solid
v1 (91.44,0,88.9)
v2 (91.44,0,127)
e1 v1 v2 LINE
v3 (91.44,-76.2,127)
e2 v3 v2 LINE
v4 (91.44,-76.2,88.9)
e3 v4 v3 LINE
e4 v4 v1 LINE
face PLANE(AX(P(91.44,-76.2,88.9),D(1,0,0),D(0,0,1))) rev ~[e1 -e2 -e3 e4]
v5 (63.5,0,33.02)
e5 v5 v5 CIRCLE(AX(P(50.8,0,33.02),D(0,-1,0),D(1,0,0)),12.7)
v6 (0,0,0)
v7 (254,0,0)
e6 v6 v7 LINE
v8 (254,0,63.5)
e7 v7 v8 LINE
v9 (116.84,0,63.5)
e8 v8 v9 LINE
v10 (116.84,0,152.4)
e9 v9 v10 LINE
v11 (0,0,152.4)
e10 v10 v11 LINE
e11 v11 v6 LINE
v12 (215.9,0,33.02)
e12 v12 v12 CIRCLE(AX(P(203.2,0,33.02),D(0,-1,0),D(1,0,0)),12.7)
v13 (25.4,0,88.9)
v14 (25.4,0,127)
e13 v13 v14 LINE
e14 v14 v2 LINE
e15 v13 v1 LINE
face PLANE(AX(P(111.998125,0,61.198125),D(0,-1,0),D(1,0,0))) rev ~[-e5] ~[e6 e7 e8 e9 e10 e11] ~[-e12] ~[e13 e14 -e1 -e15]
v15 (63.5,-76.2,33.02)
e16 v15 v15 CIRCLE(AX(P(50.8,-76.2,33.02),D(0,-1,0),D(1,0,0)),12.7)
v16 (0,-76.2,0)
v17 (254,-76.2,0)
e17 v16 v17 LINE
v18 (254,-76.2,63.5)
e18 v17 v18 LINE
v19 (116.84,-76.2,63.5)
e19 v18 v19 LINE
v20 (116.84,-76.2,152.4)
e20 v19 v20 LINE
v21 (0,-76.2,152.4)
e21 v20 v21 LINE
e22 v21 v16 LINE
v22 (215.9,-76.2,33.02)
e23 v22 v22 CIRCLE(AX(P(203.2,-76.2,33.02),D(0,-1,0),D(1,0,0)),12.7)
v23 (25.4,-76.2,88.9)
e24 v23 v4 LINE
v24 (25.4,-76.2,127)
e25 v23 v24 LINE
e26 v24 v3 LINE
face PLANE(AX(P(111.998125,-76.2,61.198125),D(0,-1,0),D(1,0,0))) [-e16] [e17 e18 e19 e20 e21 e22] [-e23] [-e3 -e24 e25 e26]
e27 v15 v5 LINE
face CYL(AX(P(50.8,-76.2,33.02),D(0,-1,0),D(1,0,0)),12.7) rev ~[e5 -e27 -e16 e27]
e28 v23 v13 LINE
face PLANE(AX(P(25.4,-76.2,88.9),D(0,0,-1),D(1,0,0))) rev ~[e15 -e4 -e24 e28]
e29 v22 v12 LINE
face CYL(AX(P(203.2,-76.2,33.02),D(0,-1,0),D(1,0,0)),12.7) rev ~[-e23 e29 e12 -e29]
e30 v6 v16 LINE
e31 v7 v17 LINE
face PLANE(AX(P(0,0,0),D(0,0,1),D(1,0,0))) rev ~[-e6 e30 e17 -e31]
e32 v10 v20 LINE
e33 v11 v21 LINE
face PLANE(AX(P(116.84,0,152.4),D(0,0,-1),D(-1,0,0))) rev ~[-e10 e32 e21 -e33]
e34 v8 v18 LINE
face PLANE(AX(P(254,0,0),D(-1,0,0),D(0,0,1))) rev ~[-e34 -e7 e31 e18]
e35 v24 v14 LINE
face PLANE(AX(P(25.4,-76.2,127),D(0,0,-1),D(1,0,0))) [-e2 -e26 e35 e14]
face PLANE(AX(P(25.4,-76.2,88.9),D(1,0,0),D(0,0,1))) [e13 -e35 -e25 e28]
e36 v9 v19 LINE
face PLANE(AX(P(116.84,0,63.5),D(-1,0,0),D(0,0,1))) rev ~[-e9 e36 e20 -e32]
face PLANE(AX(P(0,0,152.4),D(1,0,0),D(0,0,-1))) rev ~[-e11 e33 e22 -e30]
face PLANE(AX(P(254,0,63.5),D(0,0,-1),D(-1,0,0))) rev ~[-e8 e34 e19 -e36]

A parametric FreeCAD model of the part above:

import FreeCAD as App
import Part
import Sketcher
from FreeCAD import Vector
Q = App.Units.Quantity

doc = App.newDocument("Part")
body = doc.addObject("PartDesign::Body", "Body")

sketch1 = body.newObject("Sketcher::SketchObject", "Sketch")
sketch1.AttachmentSupport = (doc.getObject("XZ_Plane"), [""])
sketch1.MapMode = "FlatFace"
sketch1.addGeometry([
    Part.LineSegment(Vector(116.84, 152.4, 0), Vector(0, 152.4, 0)),
    Part.LineSegment(Vector(0, 152.4, 0), Vector(0, 0, 0)),
    Part.LineSegment(Vector(0, 0, 0), Vector(254, 0, 0)),
    Part.LineSegment(Vector(254, 0, 0), Vector(254, 63.5, 0)),
    Part.LineSegment(Vector(254, 63.5, 0), Vector(116.84, 63.5, 0)),
    Part.LineSegment(Vector(116.84, 63.5, 0), Vector(116.84, 152.4, 0)),
], False)
sketch1.addConstraint([
    Sketcher.Constraint("Coincident", 0, 2, 1, 1),
    Sketcher.Constraint("Coincident", 1, 2, 2, 1),
    Sketcher.Constraint("Coincident", 2, 2, 3, 1),
    Sketcher.Constraint("Coincident", 3, 2, 4, 1),
    Sketcher.Constraint("Coincident", 4, 2, 5, 1),
    Sketcher.Constraint("Coincident", 5, 2, 0, 1),
    Sketcher.Constraint("Horizontal", 0),
    Sketcher.Constraint("Vertical", 1),
    Sketcher.Constraint("Horizontal", 2),
    Sketcher.Constraint("Vertical", 3),
    Sketcher.Constraint("Horizontal", 4),
    Sketcher.Constraint("Vertical", 5),
    Sketcher.Constraint("Coincident", 1, 2, -1, 1),
    Sketcher.Constraint("DistanceX", 2, 1, 2, 2, Q("10 in")),
    Sketcher.Constraint("DistanceY", 1, 2, 1, 1, Q("6 in")),
    Sketcher.Constraint("DistanceX", 0, 2, 0, 1, Q("4.6 in")),
    Sketcher.Constraint("DistanceY", 3, 1, 3, 2, Q("2.5 in")),
])
pad1 = body.newObject("PartDesign::Pad", "Pad")
pad1.Profile = sketch1
pad1.Length = Q("3 in")

sketch2 = body.newObject("Sketcher::SketchObject", "Sketch001")
sketch2.AttachmentSupport = (doc.getObject("XZ_Plane"), [""])
sketch2.MapMode = "FlatFace"
sketch2.AttachmentOffset = App.Placement(Vector(0, 0, 3 * 25.4), App.Rotation())
sketch2.addGeometry([
    Part.LineSegment(Vector(25.4, 127, 0), Vector(25.4, 88.9, 0)),
    Part.LineSegment(Vector(25.4, 88.9, 0), Vector(91.44, 88.9, 0)),
    Part.LineSegment(Vector(91.44, 88.9, 0), Vector(91.44, 127, 0)),
    Part.LineSegment(Vector(91.44, 127, 0), Vector(25.4, 127, 0)),
], False)
sketch2.addConstraint([
    Sketcher.Constraint("Coincident", 0, 2, 1, 1),
    Sketcher.Constraint("Coincident", 1, 2, 2, 1),
    Sketcher.Constraint("Coincident", 2, 2, 3, 1),
    Sketcher.Constraint("Coincident", 3, 2, 0, 1),
    Sketcher.Constraint("Vertical", 0),
    Sketcher.Constraint("Horizontal", 1),
    Sketcher.Constraint("Vertical", 2),
    Sketcher.Constraint("Horizontal", 3),
    Sketcher.Constraint("DistanceX", 1, 1, 1, 2, Q("2.6 in")),
    Sketcher.Constraint("DistanceY", 0, 2, 0, 1, Q("1.5 in")),
    Sketcher.Constraint("DistanceX", -1, 1, 0, 2, Q("1 in")),
    Sketcher.Constraint("DistanceY", -1, 1, 2, 2, Q("5 in")),
])
pocket1 = body.newObject("PartDesign::Pocket", "Pocket")
pocket1.Profile = sketch2
pocket1.Length = Q("31 in")

sketch3 = body.newObject("Sketcher::SketchObject", "Sketch002")
sketch3.AttachmentSupport = (doc.getObject("XZ_Plane"), [""])
sketch3.MapMode = "FlatFace"
sketch3.AttachmentOffset = App.Placement(Vector(0, 0, 3 * 25.4), App.Rotation())
sketch3.addGeometry([
    Part.Circle(Vector(50.8, 33.02, 0), Vector(0, 0, 1), 12.7),
    Part.Circle(Vector(203.2, 33.02, 0), Vector(0, 0, 1), 12.7),
], False)
sketch3.addConstraint([
    Sketcher.Constraint("Equal", 0, 1),
    Sketcher.Constraint("Horizontal", 0, 3, 1, 3),
    Sketcher.Constraint("Diameter", 0, Q("1 in")),
    Sketcher.Constraint("DistanceX", -1, 1, 0, 3, Q("2 in")),
    Sketcher.Constraint("DistanceX", -1, 1, 1, 3, Q("8 in")),
    Sketcher.Constraint("DistanceY", -1, 1, 0, 3, Q("1.3 in")),
])
pocket2 = body.newObject("PartDesign::Pocket", "Pocket001")
pocket2.Profile = sketch3
pocket2.Length = Q("3.1 in")

doc.recompute()
